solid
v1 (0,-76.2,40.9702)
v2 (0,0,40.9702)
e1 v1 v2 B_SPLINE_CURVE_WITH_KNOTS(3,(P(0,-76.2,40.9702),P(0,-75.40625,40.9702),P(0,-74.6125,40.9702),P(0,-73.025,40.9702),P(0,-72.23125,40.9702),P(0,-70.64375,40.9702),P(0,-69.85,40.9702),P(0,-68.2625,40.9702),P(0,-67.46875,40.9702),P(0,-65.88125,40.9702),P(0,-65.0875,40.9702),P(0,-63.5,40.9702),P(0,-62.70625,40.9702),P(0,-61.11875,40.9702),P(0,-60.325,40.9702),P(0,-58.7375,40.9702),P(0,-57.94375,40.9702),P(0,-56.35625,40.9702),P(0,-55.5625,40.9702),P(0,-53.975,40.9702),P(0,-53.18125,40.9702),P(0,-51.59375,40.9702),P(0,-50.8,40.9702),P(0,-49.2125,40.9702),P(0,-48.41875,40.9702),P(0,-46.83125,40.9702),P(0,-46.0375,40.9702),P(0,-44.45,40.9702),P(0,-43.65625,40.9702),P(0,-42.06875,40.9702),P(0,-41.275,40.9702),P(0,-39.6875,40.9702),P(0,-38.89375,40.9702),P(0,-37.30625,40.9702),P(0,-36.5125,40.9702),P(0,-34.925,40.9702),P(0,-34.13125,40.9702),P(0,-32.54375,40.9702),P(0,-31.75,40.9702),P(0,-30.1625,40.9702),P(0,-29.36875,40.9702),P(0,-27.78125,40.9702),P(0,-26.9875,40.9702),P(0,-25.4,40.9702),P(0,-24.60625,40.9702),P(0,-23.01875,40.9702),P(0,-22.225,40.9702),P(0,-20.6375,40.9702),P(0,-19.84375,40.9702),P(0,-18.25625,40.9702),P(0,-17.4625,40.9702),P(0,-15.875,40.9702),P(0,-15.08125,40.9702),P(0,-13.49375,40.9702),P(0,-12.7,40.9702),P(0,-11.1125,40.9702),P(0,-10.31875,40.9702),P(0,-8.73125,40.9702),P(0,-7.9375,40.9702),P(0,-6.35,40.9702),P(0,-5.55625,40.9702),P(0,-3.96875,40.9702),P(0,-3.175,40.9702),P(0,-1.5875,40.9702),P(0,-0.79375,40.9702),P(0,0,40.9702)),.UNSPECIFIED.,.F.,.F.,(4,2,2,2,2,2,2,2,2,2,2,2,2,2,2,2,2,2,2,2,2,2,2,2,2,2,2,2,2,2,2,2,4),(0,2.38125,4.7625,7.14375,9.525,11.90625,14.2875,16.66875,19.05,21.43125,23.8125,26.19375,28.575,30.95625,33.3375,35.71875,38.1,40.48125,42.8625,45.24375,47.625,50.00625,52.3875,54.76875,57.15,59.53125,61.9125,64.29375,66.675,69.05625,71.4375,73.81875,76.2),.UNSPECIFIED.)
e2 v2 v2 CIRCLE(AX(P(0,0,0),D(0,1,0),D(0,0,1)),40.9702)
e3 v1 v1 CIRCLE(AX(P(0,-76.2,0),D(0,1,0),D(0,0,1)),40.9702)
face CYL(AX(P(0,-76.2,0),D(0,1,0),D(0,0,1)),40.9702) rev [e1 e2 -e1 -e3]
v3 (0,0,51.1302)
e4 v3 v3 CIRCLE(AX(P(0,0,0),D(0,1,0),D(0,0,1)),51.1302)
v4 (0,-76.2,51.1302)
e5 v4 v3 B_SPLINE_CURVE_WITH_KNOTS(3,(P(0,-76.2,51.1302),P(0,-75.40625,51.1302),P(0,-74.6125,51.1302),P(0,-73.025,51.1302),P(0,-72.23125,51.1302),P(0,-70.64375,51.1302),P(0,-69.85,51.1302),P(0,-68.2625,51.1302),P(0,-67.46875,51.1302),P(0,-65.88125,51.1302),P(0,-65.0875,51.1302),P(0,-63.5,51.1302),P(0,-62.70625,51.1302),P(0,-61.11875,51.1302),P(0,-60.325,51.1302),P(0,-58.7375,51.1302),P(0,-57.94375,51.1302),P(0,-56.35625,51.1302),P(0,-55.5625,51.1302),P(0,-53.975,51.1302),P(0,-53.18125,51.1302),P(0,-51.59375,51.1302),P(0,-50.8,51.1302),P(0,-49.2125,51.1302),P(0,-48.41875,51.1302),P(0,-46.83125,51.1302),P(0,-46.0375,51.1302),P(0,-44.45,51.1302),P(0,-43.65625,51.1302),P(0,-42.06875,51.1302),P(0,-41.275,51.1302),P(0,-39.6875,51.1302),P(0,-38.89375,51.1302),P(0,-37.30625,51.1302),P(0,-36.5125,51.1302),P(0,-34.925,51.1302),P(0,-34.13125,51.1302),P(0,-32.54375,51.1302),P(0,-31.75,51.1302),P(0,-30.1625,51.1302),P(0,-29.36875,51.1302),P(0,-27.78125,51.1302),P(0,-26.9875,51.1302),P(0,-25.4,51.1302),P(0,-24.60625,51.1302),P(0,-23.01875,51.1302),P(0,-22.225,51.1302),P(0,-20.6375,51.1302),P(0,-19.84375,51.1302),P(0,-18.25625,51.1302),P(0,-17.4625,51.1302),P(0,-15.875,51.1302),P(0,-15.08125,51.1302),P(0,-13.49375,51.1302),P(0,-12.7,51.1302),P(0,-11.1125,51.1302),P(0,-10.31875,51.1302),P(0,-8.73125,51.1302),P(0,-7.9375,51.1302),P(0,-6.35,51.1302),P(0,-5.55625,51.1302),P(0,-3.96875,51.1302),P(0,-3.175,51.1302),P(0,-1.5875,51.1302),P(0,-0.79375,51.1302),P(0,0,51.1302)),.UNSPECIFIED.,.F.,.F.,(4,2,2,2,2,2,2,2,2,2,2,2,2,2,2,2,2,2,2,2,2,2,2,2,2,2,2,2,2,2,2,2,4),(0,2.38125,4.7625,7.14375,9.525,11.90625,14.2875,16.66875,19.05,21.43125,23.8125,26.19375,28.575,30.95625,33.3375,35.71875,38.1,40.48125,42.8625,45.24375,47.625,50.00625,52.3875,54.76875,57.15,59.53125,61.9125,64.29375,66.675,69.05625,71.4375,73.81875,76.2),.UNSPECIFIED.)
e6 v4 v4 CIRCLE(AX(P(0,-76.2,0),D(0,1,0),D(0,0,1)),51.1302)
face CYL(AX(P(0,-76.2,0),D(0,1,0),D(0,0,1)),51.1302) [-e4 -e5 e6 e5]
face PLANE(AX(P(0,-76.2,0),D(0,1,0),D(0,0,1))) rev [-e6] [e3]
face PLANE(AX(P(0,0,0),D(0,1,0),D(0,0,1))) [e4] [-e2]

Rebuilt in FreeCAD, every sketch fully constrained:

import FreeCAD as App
import Part
import Sketcher
Q = App.Units.Quantity

doc = App.newDocument("Part")
body = doc.addObject("PartDesign::Body", "Body")

# Sketch on XZ plane
sketch1 = doc.addObject("Sketcher::SketchObject", "Sketch")
body.addObject(sketch1)
sketch1.AttachmentSupport = (doc.XZ_Plane, [""])
sketch1.MapMode = "FlatFace"
sketch1.addGeometry([
    Part.Circle(App.Vector(0, 0, 0), App.Vector(0, 0, 1), 51.1302),
    Part.Circle(App.Vector(0, 0, 0), App.Vector(0, 0, 1), 40.9702),
], False)
sketch1.addConstraint([
    Sketcher.Constraint("Coincident", 0, 3, -1, 1),
    Sketcher.Constraint("Coincident", 1, 3, -1, 1),
    Sketcher.Constraint("Diameter", 0, Q("4.026 in")),
    Sketcher.Constraint("Diameter", 1, Q("3.226 in")),
])
pad1 = doc.addObject("PartDesign::Pad", "Pad")
body.addObject(pad1)
pad1.Profile = sketch1
pad1.Length = Q("3 in")

doc.recompute()
